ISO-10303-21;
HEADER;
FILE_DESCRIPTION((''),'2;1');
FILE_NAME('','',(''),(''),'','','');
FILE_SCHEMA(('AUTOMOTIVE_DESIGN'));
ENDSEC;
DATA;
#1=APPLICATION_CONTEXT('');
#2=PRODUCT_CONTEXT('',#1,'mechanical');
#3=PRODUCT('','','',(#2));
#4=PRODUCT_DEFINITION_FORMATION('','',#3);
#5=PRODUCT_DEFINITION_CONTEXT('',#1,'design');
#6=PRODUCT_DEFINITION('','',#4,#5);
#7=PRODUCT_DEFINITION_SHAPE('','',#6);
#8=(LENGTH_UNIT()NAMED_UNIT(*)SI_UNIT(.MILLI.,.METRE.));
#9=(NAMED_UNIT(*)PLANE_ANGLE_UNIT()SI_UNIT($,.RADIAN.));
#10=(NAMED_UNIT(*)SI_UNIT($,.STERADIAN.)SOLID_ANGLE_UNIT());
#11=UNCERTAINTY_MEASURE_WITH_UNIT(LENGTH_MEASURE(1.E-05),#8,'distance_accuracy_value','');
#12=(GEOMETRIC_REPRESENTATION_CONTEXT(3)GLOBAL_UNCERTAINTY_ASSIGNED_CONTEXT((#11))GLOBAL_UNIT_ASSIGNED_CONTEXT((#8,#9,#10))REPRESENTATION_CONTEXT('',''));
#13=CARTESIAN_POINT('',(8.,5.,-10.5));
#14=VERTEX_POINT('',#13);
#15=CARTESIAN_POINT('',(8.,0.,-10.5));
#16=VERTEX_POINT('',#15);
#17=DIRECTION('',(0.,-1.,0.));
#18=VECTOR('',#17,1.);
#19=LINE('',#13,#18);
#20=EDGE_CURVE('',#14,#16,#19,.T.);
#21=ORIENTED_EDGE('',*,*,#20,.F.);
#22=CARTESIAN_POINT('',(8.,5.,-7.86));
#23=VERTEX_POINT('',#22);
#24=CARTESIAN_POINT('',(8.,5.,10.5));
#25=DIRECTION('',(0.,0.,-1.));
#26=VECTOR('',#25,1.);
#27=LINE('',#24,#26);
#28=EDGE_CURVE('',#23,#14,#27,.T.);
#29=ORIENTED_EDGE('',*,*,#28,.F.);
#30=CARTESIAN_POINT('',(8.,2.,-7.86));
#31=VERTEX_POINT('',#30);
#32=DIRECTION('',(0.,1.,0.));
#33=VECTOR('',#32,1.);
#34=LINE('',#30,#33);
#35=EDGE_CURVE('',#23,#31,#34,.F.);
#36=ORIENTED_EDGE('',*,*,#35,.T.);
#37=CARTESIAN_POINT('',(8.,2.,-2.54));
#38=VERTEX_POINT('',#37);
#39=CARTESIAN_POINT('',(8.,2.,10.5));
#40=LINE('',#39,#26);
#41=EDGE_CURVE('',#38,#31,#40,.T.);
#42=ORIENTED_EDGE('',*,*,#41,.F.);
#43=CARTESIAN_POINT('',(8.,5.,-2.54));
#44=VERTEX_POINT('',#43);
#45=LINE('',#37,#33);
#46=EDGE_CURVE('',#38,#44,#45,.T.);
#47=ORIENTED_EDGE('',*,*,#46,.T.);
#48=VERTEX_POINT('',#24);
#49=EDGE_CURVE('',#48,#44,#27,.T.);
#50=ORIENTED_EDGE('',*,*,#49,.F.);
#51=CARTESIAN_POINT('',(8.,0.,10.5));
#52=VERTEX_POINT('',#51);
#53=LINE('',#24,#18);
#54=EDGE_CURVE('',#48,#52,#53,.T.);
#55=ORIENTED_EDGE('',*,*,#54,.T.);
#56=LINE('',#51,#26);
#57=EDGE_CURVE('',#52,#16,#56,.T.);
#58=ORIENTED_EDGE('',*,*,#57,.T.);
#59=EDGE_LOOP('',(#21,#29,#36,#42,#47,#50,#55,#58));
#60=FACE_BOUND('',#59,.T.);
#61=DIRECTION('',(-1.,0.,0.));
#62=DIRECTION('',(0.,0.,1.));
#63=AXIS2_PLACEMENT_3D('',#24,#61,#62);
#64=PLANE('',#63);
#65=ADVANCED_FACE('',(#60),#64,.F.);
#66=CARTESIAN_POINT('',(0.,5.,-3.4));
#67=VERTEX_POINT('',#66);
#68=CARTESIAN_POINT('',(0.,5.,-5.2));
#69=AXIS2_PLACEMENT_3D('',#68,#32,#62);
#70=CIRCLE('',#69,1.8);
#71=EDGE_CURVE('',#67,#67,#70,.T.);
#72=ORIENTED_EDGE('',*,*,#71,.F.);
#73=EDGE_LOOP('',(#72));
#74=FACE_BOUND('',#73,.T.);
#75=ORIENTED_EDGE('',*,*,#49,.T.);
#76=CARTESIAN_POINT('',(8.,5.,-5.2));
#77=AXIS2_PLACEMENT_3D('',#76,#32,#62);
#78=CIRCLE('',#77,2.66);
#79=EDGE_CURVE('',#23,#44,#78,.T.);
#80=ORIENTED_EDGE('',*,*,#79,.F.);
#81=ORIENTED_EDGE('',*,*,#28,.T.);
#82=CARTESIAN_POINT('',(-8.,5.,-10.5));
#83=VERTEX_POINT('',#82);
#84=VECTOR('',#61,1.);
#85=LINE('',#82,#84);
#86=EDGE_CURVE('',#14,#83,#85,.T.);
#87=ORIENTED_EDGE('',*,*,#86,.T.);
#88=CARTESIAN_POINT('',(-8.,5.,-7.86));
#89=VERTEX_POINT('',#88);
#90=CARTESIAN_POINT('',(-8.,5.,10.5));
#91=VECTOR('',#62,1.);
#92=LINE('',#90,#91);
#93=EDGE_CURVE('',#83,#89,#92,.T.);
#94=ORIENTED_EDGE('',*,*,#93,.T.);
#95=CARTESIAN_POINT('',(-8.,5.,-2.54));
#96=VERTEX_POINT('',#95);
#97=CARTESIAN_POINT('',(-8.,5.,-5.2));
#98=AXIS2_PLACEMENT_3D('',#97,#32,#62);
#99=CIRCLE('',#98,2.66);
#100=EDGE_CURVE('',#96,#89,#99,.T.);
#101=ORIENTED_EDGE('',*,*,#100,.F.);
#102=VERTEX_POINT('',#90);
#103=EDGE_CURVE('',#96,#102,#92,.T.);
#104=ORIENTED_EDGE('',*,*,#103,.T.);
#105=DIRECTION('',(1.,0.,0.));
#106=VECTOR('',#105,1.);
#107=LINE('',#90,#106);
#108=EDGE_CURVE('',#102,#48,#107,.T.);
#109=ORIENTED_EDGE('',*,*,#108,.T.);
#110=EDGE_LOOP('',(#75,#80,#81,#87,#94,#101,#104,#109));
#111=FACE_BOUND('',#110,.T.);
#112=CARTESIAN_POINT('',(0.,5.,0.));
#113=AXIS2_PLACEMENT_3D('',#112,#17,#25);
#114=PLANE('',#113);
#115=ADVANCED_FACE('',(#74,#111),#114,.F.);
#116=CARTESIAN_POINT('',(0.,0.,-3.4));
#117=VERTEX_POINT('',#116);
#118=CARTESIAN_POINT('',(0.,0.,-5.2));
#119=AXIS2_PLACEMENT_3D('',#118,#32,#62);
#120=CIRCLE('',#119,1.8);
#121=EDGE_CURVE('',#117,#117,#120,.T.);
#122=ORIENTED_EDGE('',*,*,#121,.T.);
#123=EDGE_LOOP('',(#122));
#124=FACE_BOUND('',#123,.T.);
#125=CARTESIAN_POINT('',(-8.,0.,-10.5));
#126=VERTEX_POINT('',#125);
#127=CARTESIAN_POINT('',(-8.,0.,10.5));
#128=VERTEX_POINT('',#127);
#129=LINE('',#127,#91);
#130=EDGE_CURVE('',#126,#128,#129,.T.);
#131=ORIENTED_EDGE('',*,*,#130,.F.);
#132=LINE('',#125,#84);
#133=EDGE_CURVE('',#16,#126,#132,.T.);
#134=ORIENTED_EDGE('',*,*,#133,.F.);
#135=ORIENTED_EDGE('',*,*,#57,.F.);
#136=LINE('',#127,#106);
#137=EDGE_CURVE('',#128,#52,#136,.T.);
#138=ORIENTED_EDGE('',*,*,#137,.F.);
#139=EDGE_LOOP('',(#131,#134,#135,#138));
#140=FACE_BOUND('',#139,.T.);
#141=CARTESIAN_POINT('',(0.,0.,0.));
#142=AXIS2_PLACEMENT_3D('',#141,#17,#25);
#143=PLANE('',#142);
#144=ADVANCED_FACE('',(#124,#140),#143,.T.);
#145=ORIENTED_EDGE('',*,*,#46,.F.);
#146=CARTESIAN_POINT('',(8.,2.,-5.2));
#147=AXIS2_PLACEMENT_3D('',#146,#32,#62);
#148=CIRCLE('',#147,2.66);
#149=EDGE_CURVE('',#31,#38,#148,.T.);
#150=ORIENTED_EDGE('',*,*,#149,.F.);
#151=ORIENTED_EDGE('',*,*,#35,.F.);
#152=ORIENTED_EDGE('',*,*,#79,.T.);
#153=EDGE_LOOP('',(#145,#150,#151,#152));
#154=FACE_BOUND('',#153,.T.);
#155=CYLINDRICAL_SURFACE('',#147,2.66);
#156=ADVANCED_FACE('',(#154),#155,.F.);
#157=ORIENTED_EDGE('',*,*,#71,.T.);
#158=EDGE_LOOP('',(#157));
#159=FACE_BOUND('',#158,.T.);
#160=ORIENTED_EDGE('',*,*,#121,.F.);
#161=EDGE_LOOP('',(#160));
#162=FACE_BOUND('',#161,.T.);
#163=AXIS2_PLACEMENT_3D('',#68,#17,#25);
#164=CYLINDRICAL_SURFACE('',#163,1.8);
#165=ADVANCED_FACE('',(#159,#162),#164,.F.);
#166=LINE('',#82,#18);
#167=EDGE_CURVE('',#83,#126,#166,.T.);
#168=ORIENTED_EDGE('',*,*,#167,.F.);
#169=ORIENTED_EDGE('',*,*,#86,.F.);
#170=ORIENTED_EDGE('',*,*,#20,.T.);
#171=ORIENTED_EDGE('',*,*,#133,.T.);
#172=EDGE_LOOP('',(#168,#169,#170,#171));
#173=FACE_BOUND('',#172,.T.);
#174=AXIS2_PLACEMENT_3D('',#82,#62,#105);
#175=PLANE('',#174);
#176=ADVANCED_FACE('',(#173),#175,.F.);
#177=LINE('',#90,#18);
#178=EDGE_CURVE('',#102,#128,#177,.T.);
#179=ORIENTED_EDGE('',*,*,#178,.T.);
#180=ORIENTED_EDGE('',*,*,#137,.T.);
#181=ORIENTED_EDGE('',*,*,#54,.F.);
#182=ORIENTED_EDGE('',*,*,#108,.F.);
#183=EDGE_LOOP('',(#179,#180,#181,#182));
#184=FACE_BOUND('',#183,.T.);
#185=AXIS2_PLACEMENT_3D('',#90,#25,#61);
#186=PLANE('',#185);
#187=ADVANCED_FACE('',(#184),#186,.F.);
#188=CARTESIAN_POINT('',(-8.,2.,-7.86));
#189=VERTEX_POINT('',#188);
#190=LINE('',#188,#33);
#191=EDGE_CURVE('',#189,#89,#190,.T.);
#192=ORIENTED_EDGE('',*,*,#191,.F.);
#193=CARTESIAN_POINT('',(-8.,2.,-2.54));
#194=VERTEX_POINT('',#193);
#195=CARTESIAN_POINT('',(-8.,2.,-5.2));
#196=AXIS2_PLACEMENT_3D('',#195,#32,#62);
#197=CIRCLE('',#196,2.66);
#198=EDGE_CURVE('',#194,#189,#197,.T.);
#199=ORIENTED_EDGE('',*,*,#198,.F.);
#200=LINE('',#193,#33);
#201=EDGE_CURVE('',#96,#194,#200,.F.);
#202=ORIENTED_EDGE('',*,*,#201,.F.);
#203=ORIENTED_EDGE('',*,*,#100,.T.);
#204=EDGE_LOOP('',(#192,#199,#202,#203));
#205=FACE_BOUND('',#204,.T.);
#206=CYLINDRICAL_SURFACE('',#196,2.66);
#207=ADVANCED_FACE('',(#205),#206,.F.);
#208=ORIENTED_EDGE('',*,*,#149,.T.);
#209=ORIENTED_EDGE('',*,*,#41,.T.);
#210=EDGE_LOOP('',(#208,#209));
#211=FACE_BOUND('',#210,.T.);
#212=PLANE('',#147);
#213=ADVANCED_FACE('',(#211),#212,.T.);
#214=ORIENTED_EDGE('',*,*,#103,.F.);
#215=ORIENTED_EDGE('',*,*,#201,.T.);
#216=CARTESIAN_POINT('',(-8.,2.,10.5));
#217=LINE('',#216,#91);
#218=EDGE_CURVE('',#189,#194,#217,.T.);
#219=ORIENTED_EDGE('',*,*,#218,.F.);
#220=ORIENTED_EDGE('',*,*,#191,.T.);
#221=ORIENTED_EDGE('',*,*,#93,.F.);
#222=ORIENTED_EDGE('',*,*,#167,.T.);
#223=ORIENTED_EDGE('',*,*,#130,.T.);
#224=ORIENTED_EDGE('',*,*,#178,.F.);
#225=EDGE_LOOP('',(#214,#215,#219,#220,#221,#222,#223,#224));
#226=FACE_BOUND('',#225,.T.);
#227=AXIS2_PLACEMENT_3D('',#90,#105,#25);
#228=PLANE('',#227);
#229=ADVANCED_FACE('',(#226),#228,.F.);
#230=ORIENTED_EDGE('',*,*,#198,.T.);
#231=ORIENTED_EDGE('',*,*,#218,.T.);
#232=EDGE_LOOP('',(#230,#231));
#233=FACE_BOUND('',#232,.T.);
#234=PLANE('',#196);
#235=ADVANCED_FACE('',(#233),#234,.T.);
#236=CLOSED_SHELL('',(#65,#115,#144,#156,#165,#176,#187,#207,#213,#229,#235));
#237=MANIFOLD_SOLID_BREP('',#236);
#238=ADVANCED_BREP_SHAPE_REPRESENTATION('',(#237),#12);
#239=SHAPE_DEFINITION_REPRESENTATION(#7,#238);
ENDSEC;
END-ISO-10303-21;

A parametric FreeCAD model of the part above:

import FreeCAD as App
import Part
import Sketcher

V = App.Vector
Q = App.Units.Quantity


def add_polygon(sketch, points):
    """Adds a closed chain of lines whose ends are joined by coincident constraints."""
    first, n = sketch.GeometryCount, len(points)
    for a, b in zip(points, points[1:] + points[:1]):
        sketch.addGeometry(Part.LineSegment(App.Vector(*a, 0), App.Vector(*b, 0)), False)
    for i in range(n):
        sketch.addConstraint(Sketcher.Constraint("Coincident", first + i, 2, first + (i + 1) % n, 1))

doc = App.newDocument("Part")
body = doc.addObject("PartDesign::Body", "Body")

# Sketch on XZ plane
sketch1 = body.newObject("Sketcher::SketchObject", "Sketch")
sketch1.AttachmentSupport = (doc.getObject("XZ_Plane"), [""])
sketch1.MapMode = "FlatFace"
add_polygon(sketch1, [(-8, -10.5), (-8, 10.5), (8, 10.5), (8, -10.5)])  # lines 0-3
sketch1.addGeometry(Part.Circle(V(0, -5.2, 0), V(0, 0, 1), 1.8), False)  # 4
sketch1.addConstraint([
    Sketcher.Constraint("Vertical", 0),
    Sketcher.Constraint("Horizontal", 1),
    Sketcher.Constraint("Vertical", 2),
    Sketcher.Constraint("Horizontal", 3),
    Sketcher.Constraint("Symmetric", 0, 2, 2, 2, -1, 1),
    Sketcher.Constraint("PointOnObject", 4, 3, -2),
    Sketcher.Constraint("Diameter", 4, Q("3.6 mm")),
    Sketcher.Constraint("DistanceX", 1, 1, 1, 2, Q("16 mm")),
    Sketcher.Constraint("DistanceY", 0, 1, 0, 2, Q("21 mm")),
    Sketcher.Constraint("DistanceY", 4, 3, -1, 1, Q("5.2 mm")),
])
pad1 = body.newObject("PartDesign::Pad", "Pad")
pad1.Profile = sketch1
pad1.Length = 5
pad1.Reversed = True

# Sketch on XZ plane
sketch2 = body.newObject("Sketcher::SketchObject", "Sketch001")
sketch2.AttachmentSupport = (doc.getObject("XZ_Plane"), [""])
sketch2.MapMode = "FlatFace"
sketch2.AttachmentOffset = App.Placement(V(0, 0, -5), App.Rotation())
sketch2.addGeometry([
    Part.Circle(V(-8, -5.2, 0), V(0, 0, 1), 2.66),
    Part.Circle(V(8, -5.2, 0), V(0, 0, 1), 2.66),
], False)
sketch2.addConstraint([
    Sketcher.Constraint("Equal", 0, 1),
    Sketcher.Constraint("Symmetric", 0, 3, 1, 3, -2),
    Sketcher.Constraint("Diameter", 0, Q("5.32 mm")),
    Sketcher.Constraint("DistanceX", 0, 3, -1, 1, Q("8 mm")),
    Sketcher.Constraint("DistanceY", 0, 3, -1, 1, Q("5.2 mm")),
])
pocket1 = body.newObject("PartDesign::Pocket", "Pocket")
pocket1.Profile = sketch2
pocket1.Length = 3
pocket1.Reversed = True

doc.recompute()
